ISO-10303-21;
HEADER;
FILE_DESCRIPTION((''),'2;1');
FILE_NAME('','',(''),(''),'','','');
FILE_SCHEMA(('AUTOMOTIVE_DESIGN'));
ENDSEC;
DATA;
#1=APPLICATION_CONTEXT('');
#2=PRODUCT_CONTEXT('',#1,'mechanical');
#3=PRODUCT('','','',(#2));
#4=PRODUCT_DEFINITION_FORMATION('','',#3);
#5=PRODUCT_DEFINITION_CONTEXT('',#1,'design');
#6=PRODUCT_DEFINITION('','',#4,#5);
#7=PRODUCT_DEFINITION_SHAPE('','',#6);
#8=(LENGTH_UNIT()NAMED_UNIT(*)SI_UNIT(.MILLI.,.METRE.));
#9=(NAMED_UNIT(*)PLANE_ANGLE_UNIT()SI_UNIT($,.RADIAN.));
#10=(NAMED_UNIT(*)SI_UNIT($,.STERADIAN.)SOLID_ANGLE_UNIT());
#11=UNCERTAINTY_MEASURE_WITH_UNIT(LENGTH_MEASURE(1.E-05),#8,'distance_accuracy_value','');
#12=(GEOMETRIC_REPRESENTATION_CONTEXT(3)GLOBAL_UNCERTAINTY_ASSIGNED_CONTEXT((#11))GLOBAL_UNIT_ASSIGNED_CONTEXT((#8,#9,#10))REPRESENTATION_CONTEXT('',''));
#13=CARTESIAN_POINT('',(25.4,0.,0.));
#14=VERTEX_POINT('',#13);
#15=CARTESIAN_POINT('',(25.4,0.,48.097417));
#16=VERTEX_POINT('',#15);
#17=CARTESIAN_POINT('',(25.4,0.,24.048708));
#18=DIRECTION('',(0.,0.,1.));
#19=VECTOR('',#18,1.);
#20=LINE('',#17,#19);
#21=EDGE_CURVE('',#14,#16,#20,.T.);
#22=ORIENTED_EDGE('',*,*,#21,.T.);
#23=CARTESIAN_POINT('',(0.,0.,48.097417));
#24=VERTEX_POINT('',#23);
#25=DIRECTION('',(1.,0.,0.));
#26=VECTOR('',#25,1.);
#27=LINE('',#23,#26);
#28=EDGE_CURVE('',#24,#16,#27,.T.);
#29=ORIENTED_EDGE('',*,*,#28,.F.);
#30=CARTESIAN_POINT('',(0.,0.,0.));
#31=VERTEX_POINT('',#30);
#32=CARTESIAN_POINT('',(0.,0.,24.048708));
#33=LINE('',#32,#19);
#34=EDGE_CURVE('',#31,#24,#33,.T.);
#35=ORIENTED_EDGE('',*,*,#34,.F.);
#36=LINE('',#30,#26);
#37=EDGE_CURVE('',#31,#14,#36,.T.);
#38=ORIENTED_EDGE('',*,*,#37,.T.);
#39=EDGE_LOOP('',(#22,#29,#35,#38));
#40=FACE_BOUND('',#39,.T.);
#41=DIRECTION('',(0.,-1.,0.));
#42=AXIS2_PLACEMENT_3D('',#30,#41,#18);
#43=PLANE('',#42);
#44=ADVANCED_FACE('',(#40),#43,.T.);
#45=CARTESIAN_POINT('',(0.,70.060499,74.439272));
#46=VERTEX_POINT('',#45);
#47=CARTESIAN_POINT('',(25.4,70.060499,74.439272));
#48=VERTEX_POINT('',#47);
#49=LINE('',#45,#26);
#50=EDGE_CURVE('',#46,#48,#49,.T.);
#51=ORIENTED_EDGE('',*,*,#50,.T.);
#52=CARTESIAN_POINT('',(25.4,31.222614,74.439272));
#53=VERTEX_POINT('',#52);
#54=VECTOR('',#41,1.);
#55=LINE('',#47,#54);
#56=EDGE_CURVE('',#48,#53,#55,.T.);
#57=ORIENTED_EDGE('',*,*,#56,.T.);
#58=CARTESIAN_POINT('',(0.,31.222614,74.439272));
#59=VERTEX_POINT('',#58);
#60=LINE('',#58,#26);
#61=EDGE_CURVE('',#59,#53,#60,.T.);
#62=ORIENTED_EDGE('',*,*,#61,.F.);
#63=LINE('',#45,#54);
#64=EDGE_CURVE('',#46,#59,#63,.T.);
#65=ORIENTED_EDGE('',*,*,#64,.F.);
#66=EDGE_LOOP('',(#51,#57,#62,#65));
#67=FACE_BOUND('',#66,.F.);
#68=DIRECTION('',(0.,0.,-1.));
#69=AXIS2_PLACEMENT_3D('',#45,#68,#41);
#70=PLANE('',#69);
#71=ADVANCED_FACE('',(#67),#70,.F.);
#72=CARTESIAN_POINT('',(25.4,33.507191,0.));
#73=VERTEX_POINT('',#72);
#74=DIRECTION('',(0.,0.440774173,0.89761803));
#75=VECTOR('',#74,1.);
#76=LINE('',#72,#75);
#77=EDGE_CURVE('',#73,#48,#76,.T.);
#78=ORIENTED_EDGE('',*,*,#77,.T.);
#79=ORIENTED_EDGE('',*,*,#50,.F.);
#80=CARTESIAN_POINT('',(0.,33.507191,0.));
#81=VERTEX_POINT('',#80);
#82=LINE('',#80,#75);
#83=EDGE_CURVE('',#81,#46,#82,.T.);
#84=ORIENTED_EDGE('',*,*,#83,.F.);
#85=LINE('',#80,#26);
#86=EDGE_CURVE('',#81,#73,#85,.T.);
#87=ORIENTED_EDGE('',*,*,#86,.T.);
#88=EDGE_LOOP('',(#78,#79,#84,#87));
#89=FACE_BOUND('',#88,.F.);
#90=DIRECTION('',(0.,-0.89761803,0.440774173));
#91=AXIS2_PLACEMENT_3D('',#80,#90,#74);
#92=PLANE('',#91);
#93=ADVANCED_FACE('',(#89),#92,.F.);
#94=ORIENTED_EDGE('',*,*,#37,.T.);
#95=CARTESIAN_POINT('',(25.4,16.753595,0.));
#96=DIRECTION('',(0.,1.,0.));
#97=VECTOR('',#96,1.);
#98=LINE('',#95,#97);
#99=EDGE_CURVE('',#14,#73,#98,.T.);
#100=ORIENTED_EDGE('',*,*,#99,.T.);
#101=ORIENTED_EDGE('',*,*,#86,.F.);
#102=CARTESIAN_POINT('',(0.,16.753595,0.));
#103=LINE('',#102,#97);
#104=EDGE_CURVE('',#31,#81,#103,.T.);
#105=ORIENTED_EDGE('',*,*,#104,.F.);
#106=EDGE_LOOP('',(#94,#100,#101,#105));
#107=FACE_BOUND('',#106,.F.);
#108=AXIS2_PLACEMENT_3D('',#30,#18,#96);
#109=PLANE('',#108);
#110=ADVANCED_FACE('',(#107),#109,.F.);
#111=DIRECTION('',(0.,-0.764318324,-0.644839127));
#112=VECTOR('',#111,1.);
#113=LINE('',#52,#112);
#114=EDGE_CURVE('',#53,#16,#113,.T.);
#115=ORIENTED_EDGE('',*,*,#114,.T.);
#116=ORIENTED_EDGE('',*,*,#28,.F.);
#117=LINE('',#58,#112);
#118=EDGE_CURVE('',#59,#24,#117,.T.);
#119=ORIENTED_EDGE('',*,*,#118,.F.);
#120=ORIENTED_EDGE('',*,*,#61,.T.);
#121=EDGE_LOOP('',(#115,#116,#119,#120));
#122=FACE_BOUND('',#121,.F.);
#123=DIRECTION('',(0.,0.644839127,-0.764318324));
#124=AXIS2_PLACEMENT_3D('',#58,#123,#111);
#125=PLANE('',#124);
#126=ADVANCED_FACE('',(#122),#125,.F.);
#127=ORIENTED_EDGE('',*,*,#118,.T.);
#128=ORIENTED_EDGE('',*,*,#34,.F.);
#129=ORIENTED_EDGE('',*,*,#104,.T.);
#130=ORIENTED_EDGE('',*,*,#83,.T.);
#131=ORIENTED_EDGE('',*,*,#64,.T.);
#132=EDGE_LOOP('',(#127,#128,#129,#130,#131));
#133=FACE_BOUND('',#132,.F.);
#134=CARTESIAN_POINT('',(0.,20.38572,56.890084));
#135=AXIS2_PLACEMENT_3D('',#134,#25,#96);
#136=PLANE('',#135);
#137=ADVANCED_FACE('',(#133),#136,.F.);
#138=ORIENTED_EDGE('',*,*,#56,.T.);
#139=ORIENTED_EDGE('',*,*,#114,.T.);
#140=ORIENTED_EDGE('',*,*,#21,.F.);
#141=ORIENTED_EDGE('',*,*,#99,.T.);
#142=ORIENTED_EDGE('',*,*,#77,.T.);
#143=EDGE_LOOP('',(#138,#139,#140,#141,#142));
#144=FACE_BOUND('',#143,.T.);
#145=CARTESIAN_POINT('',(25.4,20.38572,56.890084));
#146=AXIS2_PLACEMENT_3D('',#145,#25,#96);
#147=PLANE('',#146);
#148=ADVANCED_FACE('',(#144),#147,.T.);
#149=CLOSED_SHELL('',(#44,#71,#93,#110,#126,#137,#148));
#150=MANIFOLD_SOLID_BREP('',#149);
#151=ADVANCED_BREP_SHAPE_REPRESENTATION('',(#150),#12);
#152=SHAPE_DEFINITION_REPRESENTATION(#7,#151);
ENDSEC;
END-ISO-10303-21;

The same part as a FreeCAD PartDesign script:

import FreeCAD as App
import Part
import Sketcher
from FreeCAD import Vector
Q = App.Units.Quantity


def add_polygon(sketch, points):
    """Adds a closed chain of lines whose ends are joined by coincident constraints."""
    first, n = sketch.GeometryCount, len(points)
    for a, b in zip(points, points[1:] + points[:1]):
        sketch.addGeometry(Part.LineSegment(App.Vector(*a, 0), App.Vector(*b, 0)), False)
    for i in range(n):
        sketch.addConstraint(Sketcher.Constraint("Coincident", first + i, 2, first + (i + 1) % n, 1))

doc = App.newDocument("Part")
body = doc.addObject("PartDesign::Body", "Body")

# Sketch on YZ plane
sketch1 = doc.addObject("Sketcher::SketchObject", "Sketch")
body.addObject(sketch1)
sketch1.AttachmentSupport = (doc.YZ_Plane, [""])
sketch1.MapMode = "FlatFace"
add_polygon(sketch1, [(31, 74), (0, 48), (0, 0), (34, 0), (70, 74)])  # lines 0-4
sketch1.addConstraint(Sketcher.Constraint("Vertical", 1))
sketch1.addConstraint(Sketcher.Constraint("Horizontal", 2))
sketch1.addConstraint(Sketcher.Constraint("Horizontal", 4))
sketch1.addConstraint(Sketcher.Constraint("Coincident", 1, 2, -1, 1))
sketch1.addConstraint(Sketcher.Constraint("DistanceX", 2, 1, 2, 2, 33.507191))
sketch1.addConstraint(Sketcher.Constraint("DistanceX", -1, 1, 3, 2, 70.060499))
sketch1.addConstraint(Sketcher.Constraint("DistanceX", 4, 2, 4, 1, 38.837885))
sketch1.addConstraint(Sketcher.Constraint("DistanceY", 1, 2, 1, 1, 48.097417))
sketch1.addConstraint(Sketcher.Constraint("Distance", 0, 40.850275))
pad1 = doc.addObject("PartDesign::Pad", "Pad")
body.addObject(pad1)
pad1.Profile = sketch1
pad1.Length = Q("1 in")

doc.recompute()
